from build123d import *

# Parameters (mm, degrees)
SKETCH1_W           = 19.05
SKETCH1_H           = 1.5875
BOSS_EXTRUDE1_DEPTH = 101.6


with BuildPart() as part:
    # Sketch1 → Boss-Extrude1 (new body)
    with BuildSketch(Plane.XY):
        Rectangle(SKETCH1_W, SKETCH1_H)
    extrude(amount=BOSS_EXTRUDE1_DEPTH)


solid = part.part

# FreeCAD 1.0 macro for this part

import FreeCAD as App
import Part
import Sketcher
from FreeCAD import Vector
Q = App.Units.Quantity


def add_polygon(sketch, points):
    """Adds a closed chain of lines whose ends are joined by coincident constraints."""
    first, n = sketch.GeometryCount, len(points)
    for a, b in zip(points, points[1:] + points[:1]):
        sketch.addGeometry(Part.LineSegment(App.Vector(*a, 0), App.Vector(*b, 0)), False)
    for i in range(n):
        sketch.addConstraint(Sketcher.Constraint("Coincident", first + i, 2, first + (i + 1) % n, 1))

doc = App.newDocument("Part")
body = doc.addObject("PartDesign::Body", "Body")

# Sketch on XY plane
sketch1 = body.newObject("Sketcher::SketchObject", "Sketch")
sketch1.AttachmentSupport = (doc.getObject("XY_Plane"), [""])
sketch1.MapMode = "FlatFace"
add_polygon(sketch1, [(-9.525, 0.79375), (-9.525, -0.79375), (9.525, -0.79375), (9.525, 0.79375)])  # lines 0-3
sketch1.addConstraint(Sketcher.Constraint("Vertical", 0))
sketch1.addConstraint(Sketcher.Constraint("Horizontal", 1))
sketch1.addConstraint(Sketcher.Constraint("Vertical", 2))
sketch1.addConstraint(Sketcher.Constraint("Horizontal", 3))
sketch1.addConstraint(Sketcher.Constraint("Symmetric", 0, 2, 2, 2, -1, 1))
sketch1.addConstraint(Sketcher.Constraint("DistanceX", 1, 1, 1, 2, Q("0.75 in")))
sketch1.addConstraint(Sketcher.Constraint("DistanceY", 0, 2, 0, 1, Q("0.0625 in")))
pad1 = body.newObject("PartDesign::Pad", "Pad")
pad1.Profile = sketch1
pad1.Length = Q("4 in")

doc.recompute()
